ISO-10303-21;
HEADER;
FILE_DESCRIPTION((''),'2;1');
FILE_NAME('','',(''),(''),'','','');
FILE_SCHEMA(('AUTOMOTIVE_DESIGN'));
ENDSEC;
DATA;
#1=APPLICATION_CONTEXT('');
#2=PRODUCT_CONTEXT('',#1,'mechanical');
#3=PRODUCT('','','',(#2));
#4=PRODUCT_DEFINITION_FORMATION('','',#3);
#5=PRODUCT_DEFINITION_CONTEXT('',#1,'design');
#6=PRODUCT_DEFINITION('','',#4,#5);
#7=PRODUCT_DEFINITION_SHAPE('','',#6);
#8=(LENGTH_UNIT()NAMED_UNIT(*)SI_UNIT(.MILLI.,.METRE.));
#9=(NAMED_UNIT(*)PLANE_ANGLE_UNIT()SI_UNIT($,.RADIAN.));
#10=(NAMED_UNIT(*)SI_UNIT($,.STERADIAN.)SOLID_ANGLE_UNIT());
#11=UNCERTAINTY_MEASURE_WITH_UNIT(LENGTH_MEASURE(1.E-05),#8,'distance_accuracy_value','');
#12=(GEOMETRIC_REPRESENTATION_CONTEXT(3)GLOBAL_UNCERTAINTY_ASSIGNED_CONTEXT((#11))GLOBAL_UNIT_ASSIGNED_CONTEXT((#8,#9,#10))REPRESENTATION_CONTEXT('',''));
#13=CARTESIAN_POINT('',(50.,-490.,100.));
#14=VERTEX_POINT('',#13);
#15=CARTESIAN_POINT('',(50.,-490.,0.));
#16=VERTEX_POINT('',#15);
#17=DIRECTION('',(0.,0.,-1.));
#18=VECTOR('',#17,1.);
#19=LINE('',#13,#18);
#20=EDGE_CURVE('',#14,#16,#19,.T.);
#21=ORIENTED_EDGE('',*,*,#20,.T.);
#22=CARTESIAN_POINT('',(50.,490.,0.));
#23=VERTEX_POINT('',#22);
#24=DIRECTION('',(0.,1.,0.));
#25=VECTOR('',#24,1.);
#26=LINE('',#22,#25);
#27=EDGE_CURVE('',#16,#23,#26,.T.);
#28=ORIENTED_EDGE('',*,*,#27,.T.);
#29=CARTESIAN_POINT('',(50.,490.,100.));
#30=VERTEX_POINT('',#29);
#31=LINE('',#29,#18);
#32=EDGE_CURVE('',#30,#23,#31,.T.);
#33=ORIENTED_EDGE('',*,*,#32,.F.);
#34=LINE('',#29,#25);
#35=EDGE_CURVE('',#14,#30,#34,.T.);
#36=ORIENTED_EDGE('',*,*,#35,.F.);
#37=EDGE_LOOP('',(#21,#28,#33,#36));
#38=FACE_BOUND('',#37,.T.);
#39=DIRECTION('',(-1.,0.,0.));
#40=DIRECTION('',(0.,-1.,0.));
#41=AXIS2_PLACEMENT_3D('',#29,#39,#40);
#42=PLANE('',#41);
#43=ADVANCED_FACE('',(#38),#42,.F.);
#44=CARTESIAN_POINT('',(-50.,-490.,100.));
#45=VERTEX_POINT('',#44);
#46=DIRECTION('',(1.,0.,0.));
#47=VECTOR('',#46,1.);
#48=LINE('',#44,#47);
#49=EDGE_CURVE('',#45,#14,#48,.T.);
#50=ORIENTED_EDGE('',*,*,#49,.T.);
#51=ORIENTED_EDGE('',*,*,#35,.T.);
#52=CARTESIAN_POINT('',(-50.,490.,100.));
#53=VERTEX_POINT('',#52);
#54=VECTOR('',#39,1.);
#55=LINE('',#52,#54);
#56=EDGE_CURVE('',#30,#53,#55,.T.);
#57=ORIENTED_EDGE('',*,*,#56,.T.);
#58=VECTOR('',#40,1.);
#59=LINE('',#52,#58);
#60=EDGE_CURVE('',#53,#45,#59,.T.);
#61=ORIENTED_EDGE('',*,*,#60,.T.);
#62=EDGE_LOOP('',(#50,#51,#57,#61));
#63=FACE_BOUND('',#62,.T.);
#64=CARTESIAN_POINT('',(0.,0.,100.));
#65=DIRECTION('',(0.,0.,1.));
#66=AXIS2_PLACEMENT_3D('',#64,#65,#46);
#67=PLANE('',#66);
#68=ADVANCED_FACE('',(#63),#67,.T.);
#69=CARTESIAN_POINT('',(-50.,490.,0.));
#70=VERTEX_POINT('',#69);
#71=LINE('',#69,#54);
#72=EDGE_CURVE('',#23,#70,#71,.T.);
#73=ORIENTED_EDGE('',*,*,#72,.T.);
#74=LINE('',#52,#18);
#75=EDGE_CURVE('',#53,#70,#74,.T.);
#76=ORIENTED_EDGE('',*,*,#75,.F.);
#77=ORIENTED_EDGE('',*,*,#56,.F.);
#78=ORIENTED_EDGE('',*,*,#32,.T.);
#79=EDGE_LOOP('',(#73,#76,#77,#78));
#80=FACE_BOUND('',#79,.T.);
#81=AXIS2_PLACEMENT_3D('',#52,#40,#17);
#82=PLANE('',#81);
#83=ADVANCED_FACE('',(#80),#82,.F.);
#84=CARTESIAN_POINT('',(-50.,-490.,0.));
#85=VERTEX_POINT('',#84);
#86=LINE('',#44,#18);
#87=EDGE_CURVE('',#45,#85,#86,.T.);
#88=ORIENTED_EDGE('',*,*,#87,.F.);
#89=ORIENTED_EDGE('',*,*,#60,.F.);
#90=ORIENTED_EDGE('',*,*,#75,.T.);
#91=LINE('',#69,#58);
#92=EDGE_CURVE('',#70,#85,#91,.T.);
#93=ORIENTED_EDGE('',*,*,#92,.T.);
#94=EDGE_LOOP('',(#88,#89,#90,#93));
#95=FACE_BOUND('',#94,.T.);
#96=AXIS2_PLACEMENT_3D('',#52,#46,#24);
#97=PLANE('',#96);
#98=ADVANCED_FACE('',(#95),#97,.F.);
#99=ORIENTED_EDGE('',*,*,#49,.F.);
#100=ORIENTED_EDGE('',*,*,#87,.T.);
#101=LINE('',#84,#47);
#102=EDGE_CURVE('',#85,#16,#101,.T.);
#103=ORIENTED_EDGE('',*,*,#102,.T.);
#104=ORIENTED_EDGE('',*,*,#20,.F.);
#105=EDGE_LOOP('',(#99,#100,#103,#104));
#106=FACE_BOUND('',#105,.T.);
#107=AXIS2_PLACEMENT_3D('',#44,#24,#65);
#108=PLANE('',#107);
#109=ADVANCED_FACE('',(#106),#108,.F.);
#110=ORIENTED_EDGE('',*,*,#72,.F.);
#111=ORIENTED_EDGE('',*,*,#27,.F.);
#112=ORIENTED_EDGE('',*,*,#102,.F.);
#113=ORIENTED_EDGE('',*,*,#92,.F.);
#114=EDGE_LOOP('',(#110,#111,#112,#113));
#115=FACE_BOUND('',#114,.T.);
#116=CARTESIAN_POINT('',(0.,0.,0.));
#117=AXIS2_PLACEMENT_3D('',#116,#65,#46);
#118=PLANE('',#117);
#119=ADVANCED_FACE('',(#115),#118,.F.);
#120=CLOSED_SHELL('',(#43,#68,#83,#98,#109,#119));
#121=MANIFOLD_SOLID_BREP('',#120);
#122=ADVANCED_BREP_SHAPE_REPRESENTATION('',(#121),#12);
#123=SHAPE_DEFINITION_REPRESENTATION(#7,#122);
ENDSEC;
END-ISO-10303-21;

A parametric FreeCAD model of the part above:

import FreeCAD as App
import Part
import Sketcher

V = App.Vector
Q = App.Units.Quantity


def add_polygon(sketch, points):
    """Adds a closed chain of lines whose ends are joined by coincident constraints."""
    first, n = sketch.GeometryCount, len(points)
    for a, b in zip(points, points[1:] + points[:1]):
        sketch.addGeometry(Part.LineSegment(App.Vector(*a, 0), App.Vector(*b, 0)), False)
    for i in range(n):
        sketch.addConstraint(Sketcher.Constraint("Coincident", first + i, 2, first + (i + 1) % n, 1))

doc = App.newDocument("Part")
body = doc.addObject("PartDesign::Body", "Body")

sketch1 = doc.addObject("Sketcher::SketchObject", "Sketch")
body.addObject(sketch1)
sketch1.AttachmentSupport = (doc.XY_Plane, [""])
sketch1.MapMode = "FlatFace"
add_polygon(sketch1, [(-50, 490), (-50, -490), (50, -490), (50, 490)])
sketch1.addConstraint([
    Sketcher.Constraint("Vertical", 0),
    Sketcher.Constraint("Horizontal", 1),
    Sketcher.Constraint("Vertical", 2),
    Sketcher.Constraint("Horizontal", 3),
    Sketcher.Constraint("Symmetric", 0, 2, 2, 2, -1, 1),
    Sketcher.Constraint("DistanceX", 1, 1, 1, 2, Q("100 mm")),
    Sketcher.Constraint("DistanceY", 0, 2, 0, 1, Q("980 mm")),
])
pad1 = doc.addObject("PartDesign::Pad", "Pad")
body.addObject(pad1)
pad1.Profile = sketch1
pad1.Length = 100

doc.recompute()
